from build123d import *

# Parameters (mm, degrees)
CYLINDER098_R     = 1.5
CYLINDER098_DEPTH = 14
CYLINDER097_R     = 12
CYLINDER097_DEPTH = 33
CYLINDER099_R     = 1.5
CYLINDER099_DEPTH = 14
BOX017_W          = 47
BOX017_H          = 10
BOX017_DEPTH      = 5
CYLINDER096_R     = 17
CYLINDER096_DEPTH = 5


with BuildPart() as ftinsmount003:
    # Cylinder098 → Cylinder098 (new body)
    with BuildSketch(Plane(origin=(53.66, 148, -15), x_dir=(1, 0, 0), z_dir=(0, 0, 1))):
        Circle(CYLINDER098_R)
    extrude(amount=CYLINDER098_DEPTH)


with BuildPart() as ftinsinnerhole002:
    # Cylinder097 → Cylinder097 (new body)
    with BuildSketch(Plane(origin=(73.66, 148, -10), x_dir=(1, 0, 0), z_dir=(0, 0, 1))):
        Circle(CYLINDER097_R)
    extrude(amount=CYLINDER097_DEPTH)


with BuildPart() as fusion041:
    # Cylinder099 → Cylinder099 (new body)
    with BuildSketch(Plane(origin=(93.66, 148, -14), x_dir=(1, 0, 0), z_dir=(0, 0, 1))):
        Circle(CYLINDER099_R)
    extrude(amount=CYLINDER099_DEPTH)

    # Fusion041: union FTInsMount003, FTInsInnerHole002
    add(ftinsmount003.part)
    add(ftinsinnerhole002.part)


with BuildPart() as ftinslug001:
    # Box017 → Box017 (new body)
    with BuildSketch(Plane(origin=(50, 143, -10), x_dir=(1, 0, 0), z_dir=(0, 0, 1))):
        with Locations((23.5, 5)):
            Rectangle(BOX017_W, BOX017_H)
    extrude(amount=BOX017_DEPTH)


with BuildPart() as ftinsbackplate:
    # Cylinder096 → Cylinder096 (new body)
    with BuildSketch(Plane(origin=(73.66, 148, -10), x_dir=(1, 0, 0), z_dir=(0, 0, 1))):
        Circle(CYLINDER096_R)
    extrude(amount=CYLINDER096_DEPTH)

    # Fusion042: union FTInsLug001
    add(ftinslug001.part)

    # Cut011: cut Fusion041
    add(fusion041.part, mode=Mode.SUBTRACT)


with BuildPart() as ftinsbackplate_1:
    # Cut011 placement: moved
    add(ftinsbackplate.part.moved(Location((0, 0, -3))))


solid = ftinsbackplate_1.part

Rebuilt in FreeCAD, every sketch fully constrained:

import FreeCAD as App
import Part
import Sketcher
from FreeCAD import Vector

doc = App.newDocument("Part")
body = doc.addObject("PartDesign::Body", "Body")

# Sketch on XY plane
sketch1 = body.newObject("Sketcher::SketchObject", "Sketch")
sketch1.AttachmentSupport = (doc.getObject("XY_Plane"), [""])
sketch1.MapMode = "FlatFace"
sketch1.AttachmentOffset = App.Placement(Vector(0, 0, -15), App.Rotation())
sketch1.addGeometry(Part.Circle(Vector(53.7, 148, 0), Vector(0, 0, 1), 1.5), False)
sketch1.addConstraint([
    Sketcher.Constraint("Diameter", 0, 3.0),
    Sketcher.Constraint("DistanceY", -1, 1, 0, 3, 148.0),
    Sketcher.Constraint("DistanceX", -1, 1, 0, 3, 53.66),
])
pad1 = body.newObject("PartDesign::Pad", "Pad")
pad1.Profile = sketch1
pad1.Length = 14
body2 = doc.addObject("PartDesign::Body", "Body001")

# Sketch on XY plane
sketch2 = body2.newObject("Sketcher::SketchObject", "Sketch001")
sketch2.AttachmentSupport = (doc.getObject("XY_Plane001"), [""])
sketch2.MapMode = "FlatFace"
sketch2.AttachmentOffset = App.Placement(Vector(0, 0, -10), App.Rotation())
sketch2.addGeometry(Part.Circle(Vector(74, 148, 0), Vector(0, 0, 1), 12), False)
sketch2.addConstraint([
    Sketcher.Constraint("Diameter", 0, 24.0),
    Sketcher.Constraint("DistanceY", -1, 1, 0, 3, 148.0),
    Sketcher.Constraint("DistanceX", -1, 1, 0, 3, 73.66),
])
pad2 = body2.newObject("PartDesign::Pad", "Pad001")
pad2.Profile = sketch2
pad2.Length = 33
body3 = doc.addObject("PartDesign::Body", "Body002")
body3.AllowCompound = True

# Sketch on XY plane
sketch3 = body3.newObject("Sketcher::SketchObject", "Sketch002")
sketch3.AttachmentSupport = (doc.getObject("XY_Plane002"), [""])
sketch3.MapMode = "FlatFace"
sketch3.AttachmentOffset = App.Placement(Vector(0, 0, -14), App.Rotation())
sketch3.addGeometry(Part.Circle(Vector(93.7, 148, 0), Vector(0, 0, 1), 1.5), False)
sketch3.addConstraint([
    Sketcher.Constraint("Diameter", 0, 3.0),
    Sketcher.Constraint("DistanceY", -1, 1, 0, 3, 148.0),
    Sketcher.Constraint("DistanceX", -1, 1, 0, 3, 93.66),
])
pad3 = body3.newObject("PartDesign::Pad", "Pad002")
pad3.Profile = sketch3
pad3.Length = 14
doc.recompute()

boolean = body3.newObject("PartDesign::Boolean", "Boolean")
boolean.Type = "Fuse"
boolean.addObjects([body])
doc.recompute()

boolean2 = body3.newObject("PartDesign::Boolean", "Boolean001")
boolean2.Type = "Fuse"
boolean2.addObjects([body2])
body4 = doc.addObject("PartDesign::Body", "Body003")

# Sketch on XY plane
sketch4 = body4.newObject("Sketcher::SketchObject", "Sketch003")
sketch4.AttachmentSupport = (doc.getObject("XY_Plane003"), [""])
sketch4.MapMode = "FlatFace"
sketch4.AttachmentOffset = App.Placement(Vector(0, 0, -10), App.Rotation())
sketch4.addGeometry([
    Part.LineSegment(Vector(50, 153, 0), Vector(50, 143, 0)),
    Part.LineSegment(Vector(50, 143, 0), Vector(97, 143, 0)),
    Part.LineSegment(Vector(97, 143, 0), Vector(97, 153, 0)),
    Part.LineSegment(Vector(97, 153, 0), Vector(50, 153, 0)),
], False)
sketch4.addConstraint([
    Sketcher.Constraint("Coincident", 0, 2, 1, 1),
    Sketcher.Constraint("Coincident", 1, 2, 2, 1),
    Sketcher.Constraint("Coincident", 2, 2, 3, 1),
    Sketcher.Constraint("Coincident", 3, 2, 0, 1),
    Sketcher.Constraint("Vertical", 0),
    Sketcher.Constraint("Horizontal", 1),
    Sketcher.Constraint("Vertical", 2),
    Sketcher.Constraint("Horizontal", 3),
    Sketcher.Constraint("DistanceX", 1, 1, 1, 2, 47.0),
    Sketcher.Constraint("DistanceY", 0, 2, 0, 1, 10.0),
    Sketcher.Constraint("DistanceX", -1, 1, 0, 2, 50.0),
    Sketcher.Constraint("DistanceY", -1, 1, 0, 2, 143.0),
])
pad4 = body4.newObject("PartDesign::Pad", "Pad003")
pad4.Profile = sketch4
pad4.Length = 5
body5 = doc.addObject("PartDesign::Body", "Body004")

# Sketch on XY plane
sketch5 = body5.newObject("Sketcher::SketchObject", "Sketch004")
sketch5.AttachmentSupport = (doc.getObject("XY_Plane004"), [""])
sketch5.MapMode = "FlatFace"
sketch5.AttachmentOffset = App.Placement(Vector(0, 0, -10), App.Rotation())
sketch5.addGeometry(Part.Circle(Vector(74, 148, 0), Vector(0, 0, 1), 17), False)
sketch5.addConstraint([
    Sketcher.Constraint("Diameter", 0, 34.0),
    Sketcher.Constraint("DistanceY", -1, 1, 0, 3, 148.0),
    Sketcher.Constraint("DistanceX", -1, 1, 0, 3, 73.66),
])
pad5 = body5.newObject("PartDesign::Pad", "Pad004")
pad5.Profile = sketch5
pad5.Length = 5
doc.recompute()

boolean3 = body5.newObject("PartDesign::Boolean", "Boolean002")
boolean3.Type = "Fuse"
boolean3.addObjects([body4])
doc.recompute()

boolean4 = body5.newObject("PartDesign::Boolean", "Boolean003")
boolean4.Type = "Cut"
boolean4.addObjects([body3])
body6 = doc.addObject("PartDesign::Body", "Body005")
doc.recompute()

body5.Placement = App.Placement(Vector(0, 0, -3), App.Rotation(Vector(0, 0, 1), 0))
boolean5 = body6.newObject("PartDesign::Boolean", "Boolean004")
boolean5.Type = "Fuse"
boolean5.addObjects([body5])

doc.recompute()
